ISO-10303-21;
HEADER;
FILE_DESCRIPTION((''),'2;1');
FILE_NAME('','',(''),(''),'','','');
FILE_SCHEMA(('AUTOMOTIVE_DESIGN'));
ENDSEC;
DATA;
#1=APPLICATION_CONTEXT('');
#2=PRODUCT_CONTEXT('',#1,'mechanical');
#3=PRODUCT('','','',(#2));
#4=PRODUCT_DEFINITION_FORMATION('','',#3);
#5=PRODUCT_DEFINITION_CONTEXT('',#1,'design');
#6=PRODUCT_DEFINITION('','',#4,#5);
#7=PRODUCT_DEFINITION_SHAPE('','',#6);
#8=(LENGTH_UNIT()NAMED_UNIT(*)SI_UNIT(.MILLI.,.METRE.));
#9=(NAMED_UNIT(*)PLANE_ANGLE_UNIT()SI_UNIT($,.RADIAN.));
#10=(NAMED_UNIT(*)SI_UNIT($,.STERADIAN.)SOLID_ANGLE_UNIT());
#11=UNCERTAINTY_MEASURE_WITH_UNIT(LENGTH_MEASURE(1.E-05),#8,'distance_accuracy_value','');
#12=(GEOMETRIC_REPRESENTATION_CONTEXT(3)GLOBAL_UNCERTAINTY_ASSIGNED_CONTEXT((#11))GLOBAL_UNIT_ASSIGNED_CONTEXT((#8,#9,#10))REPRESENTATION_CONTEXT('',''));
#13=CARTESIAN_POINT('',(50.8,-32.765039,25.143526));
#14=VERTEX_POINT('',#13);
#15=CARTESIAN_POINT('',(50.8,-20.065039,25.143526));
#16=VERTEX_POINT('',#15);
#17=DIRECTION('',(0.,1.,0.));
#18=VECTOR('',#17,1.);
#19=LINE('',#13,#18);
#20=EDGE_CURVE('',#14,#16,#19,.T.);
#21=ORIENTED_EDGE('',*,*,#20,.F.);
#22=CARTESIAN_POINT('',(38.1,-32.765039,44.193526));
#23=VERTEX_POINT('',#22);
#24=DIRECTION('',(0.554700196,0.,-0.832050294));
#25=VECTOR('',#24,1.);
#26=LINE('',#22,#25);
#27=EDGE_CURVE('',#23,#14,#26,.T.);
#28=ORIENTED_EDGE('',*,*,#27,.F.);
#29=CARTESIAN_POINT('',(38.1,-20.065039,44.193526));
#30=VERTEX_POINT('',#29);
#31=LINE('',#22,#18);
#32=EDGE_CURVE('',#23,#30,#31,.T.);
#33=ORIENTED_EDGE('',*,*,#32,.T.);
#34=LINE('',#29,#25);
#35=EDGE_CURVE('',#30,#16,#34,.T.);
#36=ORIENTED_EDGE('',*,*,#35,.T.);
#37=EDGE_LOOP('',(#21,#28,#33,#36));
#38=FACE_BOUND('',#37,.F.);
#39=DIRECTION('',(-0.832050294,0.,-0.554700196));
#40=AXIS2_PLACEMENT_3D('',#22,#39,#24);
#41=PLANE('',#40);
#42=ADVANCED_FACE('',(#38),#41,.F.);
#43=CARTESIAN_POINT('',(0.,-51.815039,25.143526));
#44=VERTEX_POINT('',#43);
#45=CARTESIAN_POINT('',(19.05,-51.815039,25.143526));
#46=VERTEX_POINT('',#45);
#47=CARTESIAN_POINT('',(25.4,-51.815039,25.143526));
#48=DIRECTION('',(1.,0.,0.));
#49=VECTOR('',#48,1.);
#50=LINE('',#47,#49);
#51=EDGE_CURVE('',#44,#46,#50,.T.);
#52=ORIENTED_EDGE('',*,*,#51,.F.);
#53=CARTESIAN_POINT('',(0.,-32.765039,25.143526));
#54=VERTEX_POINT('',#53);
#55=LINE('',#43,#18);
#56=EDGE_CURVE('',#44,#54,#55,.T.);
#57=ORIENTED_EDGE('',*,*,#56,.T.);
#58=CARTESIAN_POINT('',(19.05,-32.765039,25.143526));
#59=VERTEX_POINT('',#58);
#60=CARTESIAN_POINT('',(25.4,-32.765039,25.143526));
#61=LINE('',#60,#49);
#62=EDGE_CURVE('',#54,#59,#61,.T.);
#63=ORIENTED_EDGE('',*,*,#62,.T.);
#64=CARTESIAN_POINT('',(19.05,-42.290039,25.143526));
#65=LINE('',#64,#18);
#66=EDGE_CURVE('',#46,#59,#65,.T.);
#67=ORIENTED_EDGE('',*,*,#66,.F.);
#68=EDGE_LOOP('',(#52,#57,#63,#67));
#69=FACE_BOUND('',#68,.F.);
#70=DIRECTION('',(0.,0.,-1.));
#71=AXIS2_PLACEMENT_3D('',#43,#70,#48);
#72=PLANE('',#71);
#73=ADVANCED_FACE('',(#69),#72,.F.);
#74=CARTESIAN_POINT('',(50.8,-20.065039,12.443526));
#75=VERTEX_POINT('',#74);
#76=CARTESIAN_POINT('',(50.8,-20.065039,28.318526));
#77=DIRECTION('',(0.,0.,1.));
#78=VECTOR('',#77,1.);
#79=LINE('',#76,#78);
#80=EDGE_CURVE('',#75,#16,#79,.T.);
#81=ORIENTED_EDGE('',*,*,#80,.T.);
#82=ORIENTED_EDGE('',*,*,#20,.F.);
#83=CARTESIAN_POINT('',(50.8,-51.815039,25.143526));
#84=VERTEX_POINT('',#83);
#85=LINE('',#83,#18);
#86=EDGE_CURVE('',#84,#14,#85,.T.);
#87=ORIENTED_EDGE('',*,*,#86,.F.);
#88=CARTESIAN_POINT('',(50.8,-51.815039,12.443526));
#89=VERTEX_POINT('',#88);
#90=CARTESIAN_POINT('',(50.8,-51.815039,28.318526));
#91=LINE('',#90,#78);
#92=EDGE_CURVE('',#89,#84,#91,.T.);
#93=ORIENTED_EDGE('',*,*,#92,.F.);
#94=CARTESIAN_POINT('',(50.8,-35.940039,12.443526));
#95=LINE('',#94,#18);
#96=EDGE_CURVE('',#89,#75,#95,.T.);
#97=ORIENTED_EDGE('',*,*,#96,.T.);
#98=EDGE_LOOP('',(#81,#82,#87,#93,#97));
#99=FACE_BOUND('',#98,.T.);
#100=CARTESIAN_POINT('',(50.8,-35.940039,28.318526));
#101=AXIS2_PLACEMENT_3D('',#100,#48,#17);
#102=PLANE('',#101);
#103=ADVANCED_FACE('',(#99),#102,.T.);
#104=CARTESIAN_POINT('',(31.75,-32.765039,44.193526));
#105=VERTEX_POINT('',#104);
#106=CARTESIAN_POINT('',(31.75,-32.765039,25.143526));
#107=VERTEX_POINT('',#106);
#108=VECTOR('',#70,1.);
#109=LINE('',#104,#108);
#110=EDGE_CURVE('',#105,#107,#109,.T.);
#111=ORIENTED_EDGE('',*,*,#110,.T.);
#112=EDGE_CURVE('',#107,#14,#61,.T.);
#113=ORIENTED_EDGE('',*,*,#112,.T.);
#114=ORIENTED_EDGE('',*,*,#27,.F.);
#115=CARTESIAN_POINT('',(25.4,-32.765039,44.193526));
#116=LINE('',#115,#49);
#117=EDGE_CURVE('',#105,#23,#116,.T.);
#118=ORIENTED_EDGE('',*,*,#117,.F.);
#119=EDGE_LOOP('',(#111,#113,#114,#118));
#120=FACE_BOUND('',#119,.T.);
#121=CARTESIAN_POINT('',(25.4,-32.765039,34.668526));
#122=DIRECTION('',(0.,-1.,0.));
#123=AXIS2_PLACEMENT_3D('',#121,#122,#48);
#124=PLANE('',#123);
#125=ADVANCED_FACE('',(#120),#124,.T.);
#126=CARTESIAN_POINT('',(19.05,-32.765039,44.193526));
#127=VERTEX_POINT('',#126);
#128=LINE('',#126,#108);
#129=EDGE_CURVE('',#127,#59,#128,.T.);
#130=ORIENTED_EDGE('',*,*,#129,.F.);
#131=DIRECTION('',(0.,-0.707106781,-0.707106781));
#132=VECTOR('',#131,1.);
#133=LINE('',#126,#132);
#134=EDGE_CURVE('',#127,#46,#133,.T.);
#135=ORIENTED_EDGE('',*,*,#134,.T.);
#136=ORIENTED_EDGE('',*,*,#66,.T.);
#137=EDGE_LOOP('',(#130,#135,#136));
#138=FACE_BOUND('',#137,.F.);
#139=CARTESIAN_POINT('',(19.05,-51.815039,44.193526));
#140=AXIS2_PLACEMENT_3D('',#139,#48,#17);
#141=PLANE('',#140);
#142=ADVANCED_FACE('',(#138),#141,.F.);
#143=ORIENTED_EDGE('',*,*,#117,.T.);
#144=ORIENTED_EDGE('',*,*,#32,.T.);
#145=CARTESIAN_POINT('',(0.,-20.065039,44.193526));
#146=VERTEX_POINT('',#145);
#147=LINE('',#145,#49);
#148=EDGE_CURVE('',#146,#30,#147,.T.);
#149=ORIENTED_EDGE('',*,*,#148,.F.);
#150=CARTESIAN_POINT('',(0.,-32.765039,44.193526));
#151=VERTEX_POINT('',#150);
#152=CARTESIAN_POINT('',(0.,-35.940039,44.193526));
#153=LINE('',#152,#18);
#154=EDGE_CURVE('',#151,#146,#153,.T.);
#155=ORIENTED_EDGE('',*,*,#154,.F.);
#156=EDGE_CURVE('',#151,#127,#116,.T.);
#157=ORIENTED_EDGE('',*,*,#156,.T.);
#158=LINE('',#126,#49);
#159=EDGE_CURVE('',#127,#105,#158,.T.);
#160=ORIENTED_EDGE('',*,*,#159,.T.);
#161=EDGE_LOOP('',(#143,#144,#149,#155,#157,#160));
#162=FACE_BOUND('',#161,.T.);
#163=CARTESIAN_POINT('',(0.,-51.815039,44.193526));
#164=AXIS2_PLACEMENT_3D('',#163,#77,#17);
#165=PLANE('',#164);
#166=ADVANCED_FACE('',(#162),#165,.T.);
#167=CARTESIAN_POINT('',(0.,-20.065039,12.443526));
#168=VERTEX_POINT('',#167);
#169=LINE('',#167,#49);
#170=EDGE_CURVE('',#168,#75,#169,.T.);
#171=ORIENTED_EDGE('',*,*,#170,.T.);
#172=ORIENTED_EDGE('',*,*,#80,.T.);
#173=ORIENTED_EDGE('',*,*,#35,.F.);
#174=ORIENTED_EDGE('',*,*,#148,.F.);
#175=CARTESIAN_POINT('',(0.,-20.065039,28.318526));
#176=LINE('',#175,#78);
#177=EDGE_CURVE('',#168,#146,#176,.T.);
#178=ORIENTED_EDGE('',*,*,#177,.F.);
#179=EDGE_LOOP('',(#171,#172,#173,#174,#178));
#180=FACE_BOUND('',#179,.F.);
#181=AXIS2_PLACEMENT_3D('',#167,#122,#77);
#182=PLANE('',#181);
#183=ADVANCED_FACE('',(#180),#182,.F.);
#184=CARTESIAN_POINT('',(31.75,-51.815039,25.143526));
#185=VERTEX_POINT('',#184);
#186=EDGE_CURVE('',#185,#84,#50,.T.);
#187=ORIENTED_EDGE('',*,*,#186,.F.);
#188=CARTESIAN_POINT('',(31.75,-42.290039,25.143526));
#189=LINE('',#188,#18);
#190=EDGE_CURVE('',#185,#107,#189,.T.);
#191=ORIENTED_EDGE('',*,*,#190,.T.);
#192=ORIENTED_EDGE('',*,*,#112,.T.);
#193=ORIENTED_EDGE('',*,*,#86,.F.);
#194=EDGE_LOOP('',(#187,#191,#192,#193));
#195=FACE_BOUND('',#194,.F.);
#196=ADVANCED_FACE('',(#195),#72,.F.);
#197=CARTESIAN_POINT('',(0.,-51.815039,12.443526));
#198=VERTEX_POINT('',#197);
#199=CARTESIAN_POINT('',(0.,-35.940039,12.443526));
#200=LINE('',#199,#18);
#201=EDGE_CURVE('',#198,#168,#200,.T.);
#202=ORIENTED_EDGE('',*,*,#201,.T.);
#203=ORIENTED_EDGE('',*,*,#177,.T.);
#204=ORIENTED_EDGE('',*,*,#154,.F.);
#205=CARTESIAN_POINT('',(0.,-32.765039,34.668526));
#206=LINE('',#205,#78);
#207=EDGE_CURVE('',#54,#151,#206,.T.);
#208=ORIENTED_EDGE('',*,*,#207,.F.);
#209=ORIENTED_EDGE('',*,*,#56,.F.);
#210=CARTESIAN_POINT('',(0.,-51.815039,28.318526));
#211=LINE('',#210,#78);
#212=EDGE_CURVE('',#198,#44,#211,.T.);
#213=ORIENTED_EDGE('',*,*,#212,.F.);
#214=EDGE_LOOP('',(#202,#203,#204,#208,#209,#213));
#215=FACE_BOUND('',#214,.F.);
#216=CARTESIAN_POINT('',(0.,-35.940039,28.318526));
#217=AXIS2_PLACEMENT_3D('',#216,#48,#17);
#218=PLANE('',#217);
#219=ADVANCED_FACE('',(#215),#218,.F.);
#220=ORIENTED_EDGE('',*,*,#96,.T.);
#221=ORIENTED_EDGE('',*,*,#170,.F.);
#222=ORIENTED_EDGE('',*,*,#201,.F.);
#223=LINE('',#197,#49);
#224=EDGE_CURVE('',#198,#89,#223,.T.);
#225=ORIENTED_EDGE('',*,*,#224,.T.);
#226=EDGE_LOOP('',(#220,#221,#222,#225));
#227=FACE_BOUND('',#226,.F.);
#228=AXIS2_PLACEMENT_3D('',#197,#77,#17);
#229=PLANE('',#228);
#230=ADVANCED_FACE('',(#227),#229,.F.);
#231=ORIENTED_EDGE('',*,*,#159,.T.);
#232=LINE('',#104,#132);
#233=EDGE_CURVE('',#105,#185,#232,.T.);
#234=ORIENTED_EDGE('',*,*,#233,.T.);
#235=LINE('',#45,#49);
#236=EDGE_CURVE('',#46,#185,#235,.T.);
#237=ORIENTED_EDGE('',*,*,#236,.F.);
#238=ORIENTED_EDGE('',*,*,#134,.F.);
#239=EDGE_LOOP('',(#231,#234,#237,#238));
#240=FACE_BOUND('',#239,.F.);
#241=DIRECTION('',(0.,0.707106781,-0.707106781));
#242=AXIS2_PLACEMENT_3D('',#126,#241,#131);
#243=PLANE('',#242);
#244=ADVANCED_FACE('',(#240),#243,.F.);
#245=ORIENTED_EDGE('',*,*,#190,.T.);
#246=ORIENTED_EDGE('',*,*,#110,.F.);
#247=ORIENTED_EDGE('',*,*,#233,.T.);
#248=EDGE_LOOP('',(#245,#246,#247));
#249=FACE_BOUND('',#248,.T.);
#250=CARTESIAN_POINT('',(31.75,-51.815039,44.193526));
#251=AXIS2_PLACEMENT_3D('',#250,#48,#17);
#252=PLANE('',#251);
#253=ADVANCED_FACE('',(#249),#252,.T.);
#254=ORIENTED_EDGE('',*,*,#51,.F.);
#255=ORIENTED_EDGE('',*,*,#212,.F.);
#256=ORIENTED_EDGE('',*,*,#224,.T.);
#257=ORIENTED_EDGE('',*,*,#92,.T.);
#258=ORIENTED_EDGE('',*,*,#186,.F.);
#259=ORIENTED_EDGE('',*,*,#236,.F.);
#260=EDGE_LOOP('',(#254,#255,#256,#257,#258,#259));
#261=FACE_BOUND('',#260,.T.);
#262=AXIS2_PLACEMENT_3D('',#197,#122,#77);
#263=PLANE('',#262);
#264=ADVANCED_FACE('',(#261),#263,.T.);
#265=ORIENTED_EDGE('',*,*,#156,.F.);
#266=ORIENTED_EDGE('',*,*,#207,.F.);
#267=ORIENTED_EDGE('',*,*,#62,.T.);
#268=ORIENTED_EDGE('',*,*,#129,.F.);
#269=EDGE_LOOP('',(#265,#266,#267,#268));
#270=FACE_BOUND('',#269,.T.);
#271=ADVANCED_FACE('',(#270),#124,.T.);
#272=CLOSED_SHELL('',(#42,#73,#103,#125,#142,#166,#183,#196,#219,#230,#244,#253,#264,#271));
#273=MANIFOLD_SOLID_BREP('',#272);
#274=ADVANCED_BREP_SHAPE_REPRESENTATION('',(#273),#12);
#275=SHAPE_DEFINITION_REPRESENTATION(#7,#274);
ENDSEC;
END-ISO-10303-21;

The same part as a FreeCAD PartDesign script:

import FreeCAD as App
import Part
import Sketcher
from FreeCAD import Vector
Q = App.Units.Quantity

doc = App.newDocument("Part")
params = doc.addObject("Spreadsheet::Sheet", "Params")
for row, (alias, value) in enumerate([
    ("sketch1_width", "1.25 in"),
    ("pad1_length", "2 in"),
    ("sketch2_width", "2 in"),
    ("sketch2_height", "0.75 in"),
    ("pocket1_length", "0.75 in"),
    ("sketch3_width", "0.5 in"),
    ("sketch3_height", "0.75 in"),
    ("pocket2_length", "0.5 in"),
    ("sketch4_width", "0.5 in"),
    ("sketch4_height", "0.75 in"),
    ("pad2_length", "0.75 in"),
    ("sketch5_width", "0.75 in"),
    ("pocket3_length", "0.5 in"),
], start=1):
    params.set(f"A{row}", alias)
    params.set(f"B{row}", "=" + value)
    params.setAlias(f"B{row}", alias)

body = doc.addObject("PartDesign::Body", "Body")

# Sketch on YZ plane
sketch1 = body.newObject("Sketcher::SketchObject", "Sketch")
sketch1.AttachmentSupport = (doc.getObject("YZ_Plane"), [""])
sketch1.MapMode = "FlatFace"
sketch1.addGeometry(Part.LineSegment(Vector(-52, 44, 0), Vector(-52, 12, 0)), False)
sketch1.addGeometry(Part.LineSegment(Vector(-52, 12, 0), Vector(-20, 12, 0)), False)
sketch1.addGeometry(Part.LineSegment(Vector(-20, 12, 0), Vector(-20, 44, 0)), False)
sketch1.addGeometry(Part.LineSegment(Vector(-20, 44, 0), Vector(-52, 44, 0)), False)
sketch1.addConstraint(Sketcher.Constraint("Coincident", 0, 2, 1, 1))
sketch1.addConstraint(Sketcher.Constraint("Coincident", 1, 2, 2, 1))
sketch1.addConstraint(Sketcher.Constraint("Coincident", 2, 2, 3, 1))
sketch1.addConstraint(Sketcher.Constraint("Coincident", 3, 2, 0, 1))
sketch1.addConstraint(Sketcher.Constraint("Vertical", 0))
sketch1.addConstraint(Sketcher.Constraint("Horizontal", 1))
sketch1.addConstraint(Sketcher.Constraint("Vertical", 2))
sketch1.addConstraint(Sketcher.Constraint("Horizontal", 3))
sketch1.addConstraint(Sketcher.Constraint("Equal", 3, 0))
sketch1.addConstraint(Sketcher.Constraint("DistanceX", 1, 1, 1, 2, Q("1.25 in")))
sketch1.addConstraint(Sketcher.Constraint("DistanceX", 0, 2, -1, 1, 51.815039))
sketch1.addConstraint(Sketcher.Constraint("DistanceY", -1, 1, 0, 2, 12.443526))
sketch1.setExpression("Constraints[9]", "Params.sketch1_width")
pad1 = body.newObject("PartDesign::Pad", "Pad")
pad1.Profile = sketch1
pad1.setExpression("Length", "Params.pad1_length")

# Sketch on XZ plane
sketch2 = body.newObject("Sketcher::SketchObject", "Sketch001")
sketch2.AttachmentSupport = (doc.getObject("XZ_Plane"), [""])
sketch2.MapMode = "FlatFace"
sketch2.AttachmentOffset = App.Placement(Vector(0, 0, 51.815039), App.Rotation())
sketch2.addGeometry(Part.LineSegment(Vector(0, 44, 0), Vector(0, 25, 0)), False)
sketch2.addGeometry(Part.LineSegment(Vector(0, 25, 0), Vector(51, 25, 0)), False)
sketch2.addGeometry(Part.LineSegment(Vector(51, 25, 0), Vector(51, 44, 0)), False)
sketch2.addGeometry(Part.LineSegment(Vector(51, 44, 0), Vector(0, 44, 0)), False)
sketch2.addConstraint(Sketcher.Constraint("Coincident", 0, 2, 1, 1))
sketch2.addConstraint(Sketcher.Constraint("Coincident", 1, 2, 2, 1))
sketch2.addConstraint(Sketcher.Constraint("Coincident", 2, 2, 3, 1))
sketch2.addConstraint(Sketcher.Constraint("Coincident", 3, 2, 0, 1))
sketch2.addConstraint(Sketcher.Constraint("Vertical", 0))
sketch2.addConstraint(Sketcher.Constraint("Horizontal", 1))
sketch2.addConstraint(Sketcher.Constraint("Vertical", 2))
sketch2.addConstraint(Sketcher.Constraint("Horizontal", 3))
sketch2.addConstraint(Sketcher.Constraint("PointOnObject", 0, 2, -2))
sketch2.addConstraint(Sketcher.Constraint("DistanceX", 1, 1, 1, 2, Q("2 in")))
sketch2.addConstraint(Sketcher.Constraint("DistanceY", 0, 2, 0, 1, Q("0.75 in")))
sketch2.addConstraint(Sketcher.Constraint("DistanceY", -1, 1, 0, 2, 25.143526))
sketch2.setExpression("Constraints[9]", "Params.sketch2_width")
sketch2.setExpression("Constraints[10]", "Params.sketch2_height")
pocket1 = body.newObject("PartDesign::Pocket", "Pocket")
pocket1.Profile = sketch2
pocket1.setExpression("Length", "Params.pocket1_length")

# Sketch on XZ plane
sketch3 = body.newObject("Sketcher::SketchObject", "Sketch002")
sketch3.AttachmentSupport = (doc.getObject("XZ_Plane"), [""])
sketch3.MapMode = "FlatFace"
sketch3.AttachmentOffset = App.Placement(Vector(0, 0, 32.765039), App.Rotation())
sketch3.addGeometry(Part.LineSegment(Vector(51, 25, 0), Vector(51, 44, 0)), False)
sketch3.addGeometry(Part.LineSegment(Vector(51, 44, 0), Vector(38, 44, 0)), False)
sketch3.addGeometry(Part.LineSegment(Vector(38, 44, 0), Vector(51, 25, 0)), False)
sketch3.addConstraint(Sketcher.Constraint("Coincident", 0, 2, 1, 1))
sketch3.addConstraint(Sketcher.Constraint("Coincident", 1, 2, 2, 1))
sketch3.addConstraint(Sketcher.Constraint("Coincident", 2, 2, 0, 1))
sketch3.addConstraint(Sketcher.Constraint("Vertical", 0))
sketch3.addConstraint(Sketcher.Constraint("Horizontal", 1))
sketch3.addConstraint(Sketcher.Constraint("DistanceX", 1, 2, 1, 1, Q("0.5 in")))
sketch3.addConstraint(Sketcher.Constraint("DistanceX", -1, 1, 0, 2, Q("2 in")))
sketch3.addConstraint(Sketcher.Constraint("DistanceY", 0, 1, 0, 2, Q("0.75 in")))
sketch3.addConstraint(Sketcher.Constraint("DistanceY", -1, 1, 0, 2, 44.193526))
sketch3.setExpression("Constraints[5]", "Params.sketch3_width")
sketch3.setExpression("Constraints[7]", "Params.sketch3_height")
pocket2 = body.newObject("PartDesign::Pocket", "Pocket001")
pocket2.Profile = sketch3
pocket2.setExpression("Length", "Params.pocket2_length")

# Sketch on XY plane
sketch4 = body.newObject("Sketcher::SketchObject", "Sketch003")
sketch4.AttachmentSupport = (doc.getObject("XY_Plane"), [""])
sketch4.MapMode = "FlatFace"
sketch4.AttachmentOffset = App.Placement(Vector(0, 0, 44.193526), App.Rotation())
sketch4.addGeometry(Part.LineSegment(Vector(19, -33, 0), Vector(19, -52, 0)), False)
sketch4.addGeometry(Part.LineSegment(Vector(19, -52, 0), Vector(32, -52, 0)), False)
sketch4.addGeometry(Part.LineSegment(Vector(32, -52, 0), Vector(32, -33, 0)), False)
sketch4.addGeometry(Part.LineSegment(Vector(32, -33, 0), Vector(19, -33, 0)), False)
sketch4.addConstraint(Sketcher.Constraint("Coincident", 0, 2, 1, 1))
sketch4.addConstraint(Sketcher.Constraint("Coincident", 1, 2, 2, 1))
sketch4.addConstraint(Sketcher.Constraint("Coincident", 2, 2, 3, 1))
sketch4.addConstraint(Sketcher.Constraint("Coincident", 3, 2, 0, 1))
sketch4.addConstraint(Sketcher.Constraint("Vertical", 0))
sketch4.addConstraint(Sketcher.Constraint("Horizontal", 1))
sketch4.addConstraint(Sketcher.Constraint("Vertical", 2))
sketch4.addConstraint(Sketcher.Constraint("Horizontal", 3))
sketch4.addConstraint(Sketcher.Constraint("DistanceX", 1, 1, 1, 2, Q("0.5 in")))
sketch4.addConstraint(Sketcher.Constraint("DistanceY", 0, 2, 0, 1, Q("0.75 in")))
sketch4.addConstraint(Sketcher.Constraint("DistanceX", -1, 1, 0, 2, Q("0.75 in")))
sketch4.addConstraint(Sketcher.Constraint("DistanceY", 0, 2, -1, 1, 51.815039))
sketch4.setExpression("Constraints[8]", "Params.sketch4_width")
sketch4.setExpression("Constraints[9]", "Params.sketch4_height")
pad2 = body.newObject("PartDesign::Pad", "Pad001")
pad2.Profile = sketch4
pad2.setExpression("Length", "Params.pad2_length")
pad2.Reversed = True

# Sketch on YZ plane
sketch5 = body.newObject("Sketcher::SketchObject", "Sketch004")
sketch5.AttachmentSupport = (doc.getObject("YZ_Plane"), [""])
sketch5.MapMode = "FlatFace"
sketch5.AttachmentOffset = App.Placement(Vector(0, 0, 0.75 * 25.4), App.Rotation())
sketch5.addGeometry(Part.LineSegment(Vector(-52, 44, 0), Vector(-33, 44, 0)), False)
sketch5.addGeometry(Part.LineSegment(Vector(-33, 44, 0), Vector(-52, 25, 0)), False)
sketch5.addGeometry(Part.LineSegment(Vector(-52, 25, 0), Vector(-52, 44, 0)), False)
sketch5.addConstraint(Sketcher.Constraint("Coincident", 0, 2, 1, 1))
sketch5.addConstraint(Sketcher.Constraint("Coincident", 1, 2, 2, 1))
sketch5.addConstraint(Sketcher.Constraint("Coincident", 2, 2, 0, 1))
sketch5.addConstraint(Sketcher.Constraint("Horizontal", 0))
sketch5.addConstraint(Sketcher.Constraint("Vertical", 2))
sketch5.addConstraint(Sketcher.Constraint("Equal", 0, 2))
sketch5.addConstraint(Sketcher.Constraint("DistanceX", 0, 1, 0, 2, Q("0.75 in")))
sketch5.addConstraint(Sketcher.Constraint("DistanceX", 0, 2, -1, 1, 32.765039))
sketch5.addConstraint(Sketcher.Constraint("DistanceY", -1, 1, 0, 2, 44.193526))
sketch5.setExpression("Constraints[6]", "Params.sketch5_width")
pocket3 = body.newObject("PartDesign::Pocket", "Pocket002")
pocket3.Profile = sketch5
pocket3.setExpression("Length", "Params.pocket3_length")
pocket3.Reversed = True

doc.recompute()
